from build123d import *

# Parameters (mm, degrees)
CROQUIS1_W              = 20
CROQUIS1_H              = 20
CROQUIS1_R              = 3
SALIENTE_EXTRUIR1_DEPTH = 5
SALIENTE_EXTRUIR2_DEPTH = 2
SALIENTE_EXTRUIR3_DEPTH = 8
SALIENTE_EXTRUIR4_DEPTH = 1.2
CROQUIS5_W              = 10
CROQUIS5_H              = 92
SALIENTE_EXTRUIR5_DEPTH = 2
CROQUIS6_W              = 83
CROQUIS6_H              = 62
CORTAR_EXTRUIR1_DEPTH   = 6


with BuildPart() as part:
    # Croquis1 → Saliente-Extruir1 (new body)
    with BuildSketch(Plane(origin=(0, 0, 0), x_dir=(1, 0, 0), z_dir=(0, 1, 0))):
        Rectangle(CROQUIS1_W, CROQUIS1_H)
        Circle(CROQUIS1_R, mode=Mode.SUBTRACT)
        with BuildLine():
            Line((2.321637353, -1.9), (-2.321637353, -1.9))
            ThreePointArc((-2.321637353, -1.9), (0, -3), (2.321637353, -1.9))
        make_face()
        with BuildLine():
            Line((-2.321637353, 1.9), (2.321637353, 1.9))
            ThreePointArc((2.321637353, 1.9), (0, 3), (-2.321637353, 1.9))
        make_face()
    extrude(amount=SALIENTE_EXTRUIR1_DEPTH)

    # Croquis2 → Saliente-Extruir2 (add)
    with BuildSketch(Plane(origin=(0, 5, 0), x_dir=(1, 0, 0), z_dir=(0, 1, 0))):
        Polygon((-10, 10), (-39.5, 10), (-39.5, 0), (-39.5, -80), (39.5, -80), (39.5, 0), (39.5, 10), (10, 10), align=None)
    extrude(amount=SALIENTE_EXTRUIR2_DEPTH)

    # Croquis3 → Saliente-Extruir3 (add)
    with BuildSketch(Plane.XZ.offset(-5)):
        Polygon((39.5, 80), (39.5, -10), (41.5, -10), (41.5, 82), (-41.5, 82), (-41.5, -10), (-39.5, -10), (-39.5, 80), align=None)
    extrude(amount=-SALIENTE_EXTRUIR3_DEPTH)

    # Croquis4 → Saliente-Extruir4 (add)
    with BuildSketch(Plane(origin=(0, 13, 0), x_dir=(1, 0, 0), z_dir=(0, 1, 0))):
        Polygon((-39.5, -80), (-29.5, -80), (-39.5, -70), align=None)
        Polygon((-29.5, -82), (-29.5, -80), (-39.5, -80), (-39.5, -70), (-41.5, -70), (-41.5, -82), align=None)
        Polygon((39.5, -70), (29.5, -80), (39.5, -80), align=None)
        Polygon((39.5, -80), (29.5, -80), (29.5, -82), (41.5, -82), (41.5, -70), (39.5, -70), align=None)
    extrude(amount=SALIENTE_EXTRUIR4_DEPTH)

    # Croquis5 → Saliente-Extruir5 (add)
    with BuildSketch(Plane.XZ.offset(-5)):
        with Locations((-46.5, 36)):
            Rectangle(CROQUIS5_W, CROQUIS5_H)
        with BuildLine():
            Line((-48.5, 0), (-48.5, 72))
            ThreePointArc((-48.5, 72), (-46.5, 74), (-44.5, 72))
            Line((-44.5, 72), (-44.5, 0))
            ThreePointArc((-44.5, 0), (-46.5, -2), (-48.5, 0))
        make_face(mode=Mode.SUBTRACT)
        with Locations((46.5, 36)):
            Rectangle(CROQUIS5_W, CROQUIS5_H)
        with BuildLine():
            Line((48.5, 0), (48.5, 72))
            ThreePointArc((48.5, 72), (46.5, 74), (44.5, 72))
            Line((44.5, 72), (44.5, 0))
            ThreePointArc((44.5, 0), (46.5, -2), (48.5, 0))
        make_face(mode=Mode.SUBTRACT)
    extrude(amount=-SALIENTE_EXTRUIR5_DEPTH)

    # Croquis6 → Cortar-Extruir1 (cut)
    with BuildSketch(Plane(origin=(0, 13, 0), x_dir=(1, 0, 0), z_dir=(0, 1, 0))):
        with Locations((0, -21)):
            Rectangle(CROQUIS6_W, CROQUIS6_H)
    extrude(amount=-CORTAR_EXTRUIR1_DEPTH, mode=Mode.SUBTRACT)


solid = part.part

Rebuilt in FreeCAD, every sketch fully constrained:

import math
import FreeCAD as App
import Part
import Sketcher
from FreeCAD import Vector

doc = App.newDocument("Part")
params = doc.addObject("Spreadsheet::Sheet", "Params")
for row, (alias, value) in enumerate([
    ("sketch1_radius", "3 mm"),
    ("sketch1_width", "20 mm"),
    ("pad1_length", "5 mm"),
    ("sketch2_width", "79 mm"),
    ("sketch2_height", "90 mm"),
    ("pad2_length", "2 mm"),
    ("sketch3_width", "2 mm"),
    ("sketch3_width2", "83 mm"),
    ("sketch3_height", "90 mm"),
    ("sketch3_height2", "92 mm"),
    ("pad3_length", "8 mm"),
    ("sketch4_width", "2 mm"),
    ("sketch4_width2", "12 mm"),
    ("pad4_length", "1.2 mm"),
    ("sketch5_radius", "2 mm"),
    ("sketch5_width", "10 mm"),
    ("sketch5_height", "92 mm"),
    ("sketch5_height2", "72 mm"),
    ("pad5_length", "2 mm"),
    ("sketch6_width", "83 mm"),
    ("sketch6_height", "62 mm"),
    ("pocket1_length", "6 mm"),
], start=1):
    params.set(f"A{row}", alias)
    params.set(f"B{row}", "=" + value)
    params.setAlias(f"B{row}", alias)

body = doc.addObject("PartDesign::Body", "Body")

sketch1 = body.newObject("Sketcher::SketchObject", "Sketch")
sketch1.AttachmentSupport = (doc.getObject("XZ_Plane"), [""])
sketch1.MapMode = "FlatFace"
sketch1.addGeometry(Part.LineSegment(Vector(-10, -10, 0), Vector(-10, 10, 0)), False)
sketch1.addGeometry(Part.LineSegment(Vector(-10, 10, 0), Vector(10, 10, 0)), False)
sketch1.addGeometry(Part.LineSegment(Vector(10, 10, 0), Vector(10, -10, 0)), False)
sketch1.addGeometry(Part.LineSegment(Vector(10, -10, 0), Vector(-10, -10, 0)), False)
sketch1.addGeometry(Part.ArcOfCircle(Part.Circle(Vector(0, 0, 0), Vector(0, 0, 1), 3), math.radians(140.70352), math.radians(219.29648)), False)
sketch1.addGeometry(Part.LineSegment(Vector(-2.321637, -1.9, 0), Vector(2.321637, -1.9, 0)), False)
sketch1.addGeometry(Part.ArcOfCircle(Part.Circle(Vector(0, 0, 0), Vector(0, 0, 1), 3), math.radians(-39.29648), math.radians(39.29648)), False)
sketch1.addGeometry(Part.LineSegment(Vector(2.321637, 1.9, 0), Vector(-2.321637, 1.9, 0)), False)
sketch1.addConstraint(Sketcher.Constraint("Coincident", 0, 2, 1, 1))
sketch1.addConstraint(Sketcher.Constraint("Coincident", 1, 2, 2, 1))
sketch1.addConstraint(Sketcher.Constraint("Coincident", 2, 2, 3, 1))
sketch1.addConstraint(Sketcher.Constraint("Coincident", 3, 2, 0, 1))
sketch1.addConstraint(Sketcher.Constraint("Coincident", 4, 2, 5, 1))
sketch1.addConstraint(Sketcher.Constraint("Coincident", 5, 2, 6, 1))
sketch1.addConstraint(Sketcher.Constraint("Coincident", 6, 2, 7, 1))
sketch1.addConstraint(Sketcher.Constraint("Coincident", 7, 2, 4, 1))
sketch1.addConstraint(Sketcher.Constraint("Vertical", 0))
sketch1.addConstraint(Sketcher.Constraint("Horizontal", 1))
sketch1.addConstraint(Sketcher.Constraint("Vertical", 2))
sketch1.addConstraint(Sketcher.Constraint("Horizontal", 3))
sketch1.addConstraint(Sketcher.Constraint("Horizontal", 5))
sketch1.addConstraint(Sketcher.Constraint("Horizontal", 7))
sketch1.addConstraint(Sketcher.Constraint("Coincident", 4, 3, -1, 1))
sketch1.addConstraint(Sketcher.Constraint("Coincident", 6, 3, -1, 1))
sketch1.addConstraint(Sketcher.Constraint("Equal", 4, 6))
sketch1.addConstraint(Sketcher.Constraint("Symmetric", 0, 2, 2, 2, -1, 1))
sketch1.addConstraint(Sketcher.Constraint("Vertical", 5, 2, 6, 2))
sketch1.addConstraint(Sketcher.Constraint("Equal", 3, 0))
sketch1.addConstraint(Sketcher.Constraint("Radius", 4, 3.0))
sketch1.addConstraint(Sketcher.Constraint("DistanceX", 1, 1, 1, 2, 20.0))
sketch1.addConstraint(Sketcher.Constraint("DistanceY", 4, 2, -1, 1, 1.9))
sketch1.setExpression("Constraints[20]", "Params.sketch1_radius")
sketch1.setExpression("Constraints[21]", "Params.sketch1_width")
pad1 = body.newObject("PartDesign::Pad", "Pad")
pad1.Profile = sketch1
pad1.setExpression("Length", "Params.pad1_length")
pad1.Reversed = True

sketch2 = body.newObject("Sketcher::SketchObject", "Sketch001")
sketch2.AttachmentSupport = (doc.getObject("XZ_Plane"), [""])
sketch2.MapMode = "FlatFace"
sketch2.AttachmentOffset = App.Placement(Vector(0, 0, -5), App.Rotation())
sketch2.addGeometry(Part.LineSegment(Vector(-39.5, -10, 0), Vector(-39.5, 80, 0)), False)
sketch2.addGeometry(Part.LineSegment(Vector(-39.5, 80, 0), Vector(39.5, 80, 0)), False)
sketch2.addGeometry(Part.LineSegment(Vector(39.5, 80, 0), Vector(39.5, -10, 0)), False)
sketch2.addGeometry(Part.LineSegment(Vector(39.5, -10, 0), Vector(-39.5, -10, 0)), False)
sketch2.addConstraint(Sketcher.Constraint("Coincident", 0, 2, 1, 1))
sketch2.addConstraint(Sketcher.Constraint("Coincident", 1, 2, 2, 1))
sketch2.addConstraint(Sketcher.Constraint("Coincident", 2, 2, 3, 1))
sketch2.addConstraint(Sketcher.Constraint("Coincident", 3, 2, 0, 1))
sketch2.addConstraint(Sketcher.Constraint("Vertical", 0))
sketch2.addConstraint(Sketcher.Constraint("Horizontal", 1))
sketch2.addConstraint(Sketcher.Constraint("Vertical", 2))
sketch2.addConstraint(Sketcher.Constraint("Horizontal", 3))
sketch2.addConstraint(Sketcher.Constraint("DistanceX", 1, 1, 1, 2, 79.0))
sketch2.addConstraint(Sketcher.Constraint("DistanceY", 0, 1, 0, 2, 90.0))
sketch2.addConstraint(Sketcher.Constraint("DistanceY", -1, 1, 0, 2, 80.0))
sketch2.addConstraint(Sketcher.Constraint("DistanceX", 0, 2, -1, 1, 39.5))
sketch2.setExpression("Constraints[8]", "Params.sketch2_width")
sketch2.setExpression("Constraints[9]", "Params.sketch2_height")
pad2 = body.newObject("PartDesign::Pad", "Pad001")
pad2.Profile = sketch2
pad2.setExpression("Length", "Params.pad2_length")
pad2.Reversed = True

sketch3 = body.newObject("Sketcher::SketchObject", "Sketch002")
sketch3.AttachmentSupport = (doc.getObject("XZ_Plane"), [""])
sketch3.MapMode = "FlatFace"
sketch3.AttachmentOffset = App.Placement(Vector(0, 0, -5), App.Rotation())
sketch3.addGeometry(Part.LineSegment(Vector(39.5, 80, 0), Vector(39.5, -10, 0)), False)
sketch3.addGeometry(Part.LineSegment(Vector(39.5, -10, 0), Vector(41.5, -10, 0)), False)
sketch3.addGeometry(Part.LineSegment(Vector(41.5, -10, 0), Vector(41.5, 82, 0)), False)
sketch3.addGeometry(Part.LineSegment(Vector(41.5, 82, 0), Vector(-41.5, 82, 0)), False)
sketch3.addGeometry(Part.LineSegment(Vector(-41.5, 82, 0), Vector(-41.5, -10, 0)), False)
sketch3.addGeometry(Part.LineSegment(Vector(-41.5, -10, 0), Vector(-39.5, -10, 0)), False)
sketch3.addGeometry(Part.LineSegment(Vector(-39.5, -10, 0), Vector(-39.5, 80, 0)), False)
sketch3.addGeometry(Part.LineSegment(Vector(-39.5, 80, 0), Vector(39.5, 80, 0)), False)
sketch3.addConstraint(Sketcher.Constraint("Coincident", 0, 2, 1, 1))
sketch3.addConstraint(Sketcher.Constraint("Coincident", 1, 2, 2, 1))
sketch3.addConstraint(Sketcher.Constraint("Coincident", 2, 2, 3, 1))
sketch3.addConstraint(Sketcher.Constraint("Coincident", 3, 2, 4, 1))
sketch3.addConstraint(Sketcher.Constraint("Coincident", 4, 2, 5, 1))
sketch3.addConstraint(Sketcher.Constraint("Coincident", 5, 2, 6, 1))
sketch3.addConstraint(Sketcher.Constraint("Coincident", 6, 2, 7, 1))
sketch3.addConstraint(Sketcher.Constraint("Coincident", 7, 2, 0, 1))
sketch3.addConstraint(Sketcher.Constraint("Vertical", 0))
sketch3.addConstraint(Sketcher.Constraint("Horizontal", 1))
sketch3.addConstraint(Sketcher.Constraint("Vertical", 2))
sketch3.addConstraint(Sketcher.Constraint("Horizontal", 3))
sketch3.addConstraint(Sketcher.Constraint("Vertical", 4))
sketch3.addConstraint(Sketcher.Constraint("Horizontal", 5))
sketch3.addConstraint(Sketcher.Constraint("Vertical", 6))
sketch3.addConstraint(Sketcher.Constraint("Horizontal", 7))
sketch3.addConstraint(Sketcher.Constraint("Symmetric", 1, 2, 4, 2, -2))
sketch3.addConstraint(Sketcher.Constraint("Equal", 1, 5))
sketch3.addConstraint(Sketcher.Constraint("DistanceX", 1, 1, 1, 2, 2.0))
sketch3.addConstraint(Sketcher.Constraint("DistanceX", 3, 2, 3, 1, 83.0))
sketch3.addConstraint(Sketcher.Constraint("DistanceY", 0, 2, 0, 1, 90.0))
sketch3.addConstraint(Sketcher.Constraint("DistanceY", 2, 1, 2, 2, 92.0))
sketch3.addConstraint(Sketcher.Constraint("DistanceY", 0, 2, -1, 1, 10.0))
sketch3.setExpression("Constraints[18]", "Params.sketch3_width")
sketch3.setExpression("Constraints[19]", "Params.sketch3_width2")
sketch3.setExpression("Constraints[20]", "Params.sketch3_height")
sketch3.setExpression("Constraints[21]", "Params.sketch3_height2")
pad3 = body.newObject("PartDesign::Pad", "Pad002")
pad3.Profile = sketch3
pad3.setExpression("Length", "Params.pad3_length")
pad3.Reversed = True

sketch4 = body.newObject("Sketcher::SketchObject", "Sketch003")
sketch4.AttachmentSupport = (doc.getObject("XZ_Plane"), [""])
sketch4.MapMode = "FlatFace"
sketch4.AttachmentOffset = App.Placement(Vector(0, 0, -13), App.Rotation())
sketch4.addGeometry(Part.LineSegment(Vector(-29.5, 80, 0), Vector(-39.5, 70, 0)), False)
sketch4.addGeometry(Part.LineSegment(Vector(-39.5, 70, 0), Vector(-41.5, 70, 0)), False)
sketch4.addGeometry(Part.LineSegment(Vector(-41.5, 70, 0), Vector(-41.5, 82, 0)), False)
sketch4.addGeometry(Part.LineSegment(Vector(-41.5, 82, 0), Vector(-29.5, 82, 0)), False)
sketch4.addGeometry(Part.LineSegment(Vector(-29.5, 82, 0), Vector(-29.5, 80, 0)), False)
sketch4.addGeometry(Part.LineSegment(Vector(39.5, 70, 0), Vector(29.5, 80, 0)), False)
sketch4.addGeometry(Part.LineSegment(Vector(29.5, 80, 0), Vector(29.5, 82, 0)), False)
sketch4.addGeometry(Part.LineSegment(Vector(29.5, 82, 0), Vector(41.5, 82, 0)), False)
sketch4.addGeometry(Part.LineSegment(Vector(41.5, 82, 0), Vector(41.5, 70, 0)), False)
sketch4.addGeometry(Part.LineSegment(Vector(41.5, 70, 0), Vector(39.5, 70, 0)), False)
sketch4.addConstraint(Sketcher.Constraint("Coincident", 0, 2, 1, 1))
sketch4.addConstraint(Sketcher.Constraint("Coincident", 1, 2, 2, 1))
sketch4.addConstraint(Sketcher.Constraint("Coincident", 2, 2, 3, 1))
sketch4.addConstraint(Sketcher.Constraint("Coincident", 3, 2, 4, 1))
sketch4.addConstraint(Sketcher.Constraint("Coincident", 4, 2, 0, 1))
sketch4.addConstraint(Sketcher.Constraint("Coincident", 5, 2, 6, 1))
sketch4.addConstraint(Sketcher.Constraint("Coincident", 6, 2, 7, 1))
sketch4.addConstraint(Sketcher.Constraint("Coincident", 7, 2, 8, 1))
sketch4.addConstraint(Sketcher.Constraint("Coincident", 8, 2, 9, 1))
sketch4.addConstraint(Sketcher.Constraint("Coincident", 9, 2, 5, 1))
sketch4.addConstraint(Sketcher.Constraint("Horizontal", 1))
sketch4.addConstraint(Sketcher.Constraint("Vertical", 2))
sketch4.addConstraint(Sketcher.Constraint("Horizontal", 3))
sketch4.addConstraint(Sketcher.Constraint("Vertical", 4))
sketch4.addConstraint(Sketcher.Constraint("Vertical", 6))
sketch4.addConstraint(Sketcher.Constraint("Horizontal", 7))
sketch4.addConstraint(Sketcher.Constraint("Vertical", 8))
sketch4.addConstraint(Sketcher.Constraint("Horizontal", 9))
sketch4.addConstraint(Sketcher.Constraint("Symmetric", 4, 2, 5, 2, -2))
sketch4.addConstraint(Sketcher.Constraint("Symmetric", 2, 2, 7, 2, -2))
sketch4.addConstraint(Sketcher.Constraint("Symmetric", 0, 2, 9, 2, -2))
sketch4.addConstraint(Sketcher.Constraint("Perpendicular", 0, 5))
sketch4.addConstraint(Sketcher.Constraint("Equal", 7, 2))
sketch4.addConstraint(Sketcher.Constraint("DistanceX", 1, 2, 1, 1, 2.0))
sketch4.addConstraint(Sketcher.Constraint("DistanceX", 3, 1, 3, 2, 12.0))
sketch4.addConstraint(Sketcher.Constraint("DistanceY", -1, 1, 0, 2, 70.0))
sketch4.addConstraint(Sketcher.Constraint("DistanceX", 4, 2, 5, 2, 59.0))
sketch4.setExpression("Constraints[23]", "Params.sketch4_width")
sketch4.setExpression("Constraints[24]", "Params.sketch4_width2")
pad4 = body.newObject("PartDesign::Pad", "Pad003")
pad4.Profile = sketch4
pad4.setExpression("Length", "Params.pad4_length")
pad4.Reversed = True

sketch5 = body.newObject("Sketcher::SketchObject", "Sketch004")
sketch5.AttachmentSupport = (doc.getObject("XZ_Plane"), [""])
sketch5.MapMode = "FlatFace"
sketch5.AttachmentOffset = App.Placement(Vector(0, 0, -5), App.Rotation())
sketch5.addGeometry(Part.LineSegment(Vector(-51.5, 82, 0), Vector(-51.5, -10, 0)), False)
sketch5.addGeometry(Part.LineSegment(Vector(-51.5, -10, 0), Vector(-41.5, -10, 0)), False)
sketch5.addGeometry(Part.LineSegment(Vector(-41.5, -10, 0), Vector(-41.5, 82, 0)), False)
sketch5.addGeometry(Part.LineSegment(Vector(-41.5, 82, 0), Vector(-51.5, 82, 0)), False)
sketch5.addGeometry(Part.ArcOfCircle(Part.Circle(Vector(-46.5, 0, 0), Vector(0, 0, 1), 2), math.radians(180), math.radians(360)), False)
sketch5.addGeometry(Part.LineSegment(Vector(-48.5, 0, 0), Vector(-48.5, 72, 0)), False)
sketch5.addGeometry(Part.ArcOfCircle(Part.Circle(Vector(-46.5, 72, 0), Vector(0, 0, 1), 2), math.radians(0), math.radians(180)), False)
sketch5.addGeometry(Part.LineSegment(Vector(-44.5, 72, 0), Vector(-44.5, 0, 0)), False)
sketch5.addGeometry(Part.LineSegment(Vector(41.5, 82, 0), Vector(41.5, -10, 0)), False)
sketch5.addGeometry(Part.LineSegment(Vector(41.5, -10, 0), Vector(51.5, -10, 0)), False)
sketch5.addGeometry(Part.LineSegment(Vector(51.5, -10, 0), Vector(51.5, 82, 0)), False)
sketch5.addGeometry(Part.LineSegment(Vector(51.5, 82, 0), Vector(41.5, 82, 0)), False)
sketch5.addGeometry(Part.LineSegment(Vector(48.5, 72, 0), Vector(48.5, 0, 0)), False)
sketch5.addGeometry(Part.ArcOfCircle(Part.Circle(Vector(46.5, 0, 0), Vector(0, 0, 1), 2), math.radians(180), math.radians(360)), False)
sketch5.addGeometry(Part.LineSegment(Vector(44.5, 0, 0), Vector(44.5, 72, 0)), False)
sketch5.addGeometry(Part.ArcOfCircle(Part.Circle(Vector(46.5, 72, 0), Vector(0, 0, 1), 2), math.radians(0), math.radians(180)), False)
sketch5.addConstraint(Sketcher.Constraint("Coincident", 0, 2, 1, 1))
sketch5.addConstraint(Sketcher.Constraint("Coincident", 1, 2, 2, 1))
sketch5.addConstraint(Sketcher.Constraint("Coincident", 2, 2, 3, 1))
sketch5.addConstraint(Sketcher.Constraint("Coincident", 3, 2, 0, 1))
sketch5.addConstraint(Sketcher.Constraint("Tangent", 4, 1, 5, 1))
sketch5.addConstraint(Sketcher.Constraint("Tangent", 5, 2, 6, 2))
sketch5.addConstraint(Sketcher.Constraint("Tangent", 6, 1, 7, 1))
sketch5.addConstraint(Sketcher.Constraint("Tangent", 7, 2, 4, 2))
sketch5.addConstraint(Sketcher.Constraint("Coincident", 8, 2, 9, 1))
sketch5.addConstraint(Sketcher.Constraint("Coincident", 9, 2, 10, 1))
sketch5.addConstraint(Sketcher.Constraint("Coincident", 10, 2, 11, 1))
sketch5.addConstraint(Sketcher.Constraint("Coincident", 11, 2, 8, 1))
sketch5.addConstraint(Sketcher.Constraint("Tangent", 12, 2, 13, 2))
sketch5.addConstraint(Sketcher.Constraint("Tangent", 13, 1, 14, 1))
sketch5.addConstraint(Sketcher.Constraint("Tangent", 14, 2, 15, 2))
sketch5.addConstraint(Sketcher.Constraint("Tangent", 15, 1, 12, 1))
sketch5.addConstraint(Sketcher.Constraint("Vertical", 0))
sketch5.addConstraint(Sketcher.Constraint("Horizontal", 1))
sketch5.addConstraint(Sketcher.Constraint("Vertical", 2))
sketch5.addConstraint(Sketcher.Constraint("Horizontal", 3))
sketch5.addConstraint(Sketcher.Constraint("Vertical", 5))
sketch5.addConstraint(Sketcher.Constraint("Vertical", 7))
sketch5.addConstraint(Sketcher.Constraint("Vertical", 8))
sketch5.addConstraint(Sketcher.Constraint("Horizontal", 9))
sketch5.addConstraint(Sketcher.Constraint("Vertical", 10))
sketch5.addConstraint(Sketcher.Constraint("Horizontal", 11))
sketch5.addConstraint(Sketcher.Constraint("Vertical", 12))
sketch5.addConstraint(Sketcher.Constraint("Vertical", 14))
sketch5.addConstraint(Sketcher.Constraint("Equal", 6, 13))
sketch5.addConstraint(Sketcher.Constraint("Symmetric", 4, 3, 13, 3, -1, 1))
sketch5.addConstraint(Sketcher.Constraint("Symmetric", 1, 2, 8, 2, -2))
sketch5.addConstraint(Sketcher.Constraint("Symmetric", 3, 2, 10, 2, -2))
sketch5.addConstraint(Sketcher.Constraint("PointOnObject", 4, 3, -1))
sketch5.addConstraint(Sketcher.Constraint("Horizontal", 6, 3, 15, 3))
sketch5.addConstraint(Sketcher.Constraint("Radius", 4, 2.0))
sketch5.addConstraint(Sketcher.Constraint("DistanceX", 1, 1, 1, 2, 10.0))
sketch5.addConstraint(Sketcher.Constraint("DistanceY", 0, 2, 0, 1, 92.0))
sketch5.addConstraint(Sketcher.Constraint("DistanceY", 5, 1, 5, 2, 72.0))
sketch5.addConstraint(Sketcher.Constraint("DistanceY", 0, 2, -1, 1, 10.0))
sketch5.addConstraint(Sketcher.Constraint("DistanceX", 4, 3, 13, 3, 93.0))
sketch5.addConstraint(Sketcher.Constraint("DistanceX", 0, 2, 4, 3, 5.0))
sketch5.setExpression("Constraints[34]", "Params.sketch5_radius")
sketch5.setExpression("Constraints[35]", "Params.sketch5_width")
sketch5.setExpression("Constraints[36]", "Params.sketch5_height")
sketch5.setExpression("Constraints[37]", "Params.sketch5_height2")
pad5 = body.newObject("PartDesign::Pad", "Pad004")
pad5.Profile = sketch5
pad5.setExpression("Length", "Params.pad5_length")
pad5.Reversed = True

sketch6 = body.newObject("Sketcher::SketchObject", "Sketch005")
sketch6.AttachmentSupport = (doc.getObject("XZ_Plane"), [""])
sketch6.MapMode = "FlatFace"
sketch6.AttachmentOffset = App.Placement(Vector(0, 0, -13), App.Rotation())
sketch6.addGeometry(Part.LineSegment(Vector(-41.5, -10, 0), Vector(-41.5, 52, 0)), False)
sketch6.addGeometry(Part.LineSegment(Vector(-41.5, 52, 0), Vector(41.5, 52, 0)), False)
sketch6.addGeometry(Part.LineSegment(Vector(41.5, 52, 0), Vector(41.5, -10, 0)), False)
sketch6.addGeometry(Part.LineSegment(Vector(41.5, -10, 0), Vector(-41.5, -10, 0)), False)
sketch6.addConstraint(Sketcher.Constraint("Coincident", 0, 2, 1, 1))
sketch6.addConstraint(Sketcher.Constraint("Coincident", 1, 2, 2, 1))
sketch6.addConstraint(Sketcher.Constraint("Coincident", 2, 2, 3, 1))
sketch6.addConstraint(Sketcher.Constraint("Coincident", 3, 2, 0, 1))
sketch6.addConstraint(Sketcher.Constraint("Vertical", 0))
sketch6.addConstraint(Sketcher.Constraint("Horizontal", 1))
sketch6.addConstraint(Sketcher.Constraint("Vertical", 2))
sketch6.addConstraint(Sketcher.Constraint("Horizontal", 3))
sketch6.addConstraint(Sketcher.Constraint("DistanceX", 1, 1, 1, 2, 83.0))
sketch6.addConstraint(Sketcher.Constraint("DistanceY", 0, 1, 0, 2, 62.0))
sketch6.addConstraint(Sketcher.Constraint("DistanceY", -1, 1, 0, 2, 52.0))
sketch6.addConstraint(Sketcher.Constraint("DistanceX", 0, 2, -1, 1, 41.5))
sketch6.setExpression("Constraints[8]", "Params.sketch6_width")
sketch6.setExpression("Constraints[9]", "Params.sketch6_height")
pocket1 = body.newObject("PartDesign::Pocket", "Pocket")
pocket1.Profile = sketch6
pocket1.setExpression("Length", "Params.pocket1_length")
pocket1.Reversed = True

doc.recompute()
